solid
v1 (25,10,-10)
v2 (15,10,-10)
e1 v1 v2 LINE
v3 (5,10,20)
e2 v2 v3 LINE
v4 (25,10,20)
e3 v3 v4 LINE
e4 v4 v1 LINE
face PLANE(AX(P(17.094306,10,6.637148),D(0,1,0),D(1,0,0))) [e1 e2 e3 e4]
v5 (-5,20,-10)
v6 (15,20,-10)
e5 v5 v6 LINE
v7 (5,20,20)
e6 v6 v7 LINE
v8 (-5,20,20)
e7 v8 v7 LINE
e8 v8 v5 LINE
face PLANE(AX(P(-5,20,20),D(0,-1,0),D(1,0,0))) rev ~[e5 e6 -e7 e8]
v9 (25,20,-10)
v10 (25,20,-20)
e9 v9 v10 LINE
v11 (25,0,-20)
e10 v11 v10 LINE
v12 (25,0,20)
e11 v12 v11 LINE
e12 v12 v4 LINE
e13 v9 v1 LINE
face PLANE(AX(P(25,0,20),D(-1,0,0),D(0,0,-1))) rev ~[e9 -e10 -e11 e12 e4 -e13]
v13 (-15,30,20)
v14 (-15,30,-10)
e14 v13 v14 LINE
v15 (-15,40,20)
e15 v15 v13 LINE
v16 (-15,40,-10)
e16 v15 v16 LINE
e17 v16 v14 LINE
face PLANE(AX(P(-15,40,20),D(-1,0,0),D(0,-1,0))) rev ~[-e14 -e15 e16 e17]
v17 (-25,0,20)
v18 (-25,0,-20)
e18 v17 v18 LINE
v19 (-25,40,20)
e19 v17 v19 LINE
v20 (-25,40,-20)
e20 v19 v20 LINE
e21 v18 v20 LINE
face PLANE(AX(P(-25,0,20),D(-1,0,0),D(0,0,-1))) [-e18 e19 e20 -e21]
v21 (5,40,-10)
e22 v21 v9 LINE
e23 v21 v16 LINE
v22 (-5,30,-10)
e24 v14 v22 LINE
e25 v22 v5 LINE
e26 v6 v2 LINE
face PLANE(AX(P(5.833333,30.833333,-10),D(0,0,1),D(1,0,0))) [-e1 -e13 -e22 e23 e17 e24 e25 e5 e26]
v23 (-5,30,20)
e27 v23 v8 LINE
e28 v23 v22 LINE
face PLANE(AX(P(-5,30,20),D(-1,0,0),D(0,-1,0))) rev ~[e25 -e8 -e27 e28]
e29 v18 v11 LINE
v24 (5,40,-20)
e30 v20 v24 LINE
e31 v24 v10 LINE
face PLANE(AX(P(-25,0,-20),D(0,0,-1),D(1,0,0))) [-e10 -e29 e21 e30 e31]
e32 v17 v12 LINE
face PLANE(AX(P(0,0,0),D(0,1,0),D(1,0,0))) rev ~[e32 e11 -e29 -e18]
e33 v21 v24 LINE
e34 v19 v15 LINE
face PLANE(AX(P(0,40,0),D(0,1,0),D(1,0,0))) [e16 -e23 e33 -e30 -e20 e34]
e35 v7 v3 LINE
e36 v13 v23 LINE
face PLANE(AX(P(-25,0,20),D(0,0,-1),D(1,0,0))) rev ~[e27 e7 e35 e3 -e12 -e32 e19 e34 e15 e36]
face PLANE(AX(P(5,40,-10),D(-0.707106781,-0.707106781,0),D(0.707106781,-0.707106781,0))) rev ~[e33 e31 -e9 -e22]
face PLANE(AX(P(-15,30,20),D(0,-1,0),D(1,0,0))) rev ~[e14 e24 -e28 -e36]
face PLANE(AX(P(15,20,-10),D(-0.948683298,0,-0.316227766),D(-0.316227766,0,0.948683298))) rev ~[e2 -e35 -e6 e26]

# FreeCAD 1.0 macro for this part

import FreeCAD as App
import Part
import Sketcher

V = App.Vector

doc = App.newDocument("Part")
body = doc.addObject("PartDesign::Body", "Body")

sketch1 = doc.addObject("Sketcher::SketchObject", "Sketch")
body.addObject(sketch1)
sketch1.AttachmentSupport = (doc.XZ_Plane, [""])
sketch1.MapMode = "FlatFace"
sketch1.addGeometry(Part.LineSegment(V(-25, -20, 0), V(-25, 20, 0)), False)
sketch1.addGeometry(Part.LineSegment(V(-25, 20, 0), V(25, 20, 0)), False)
sketch1.addGeometry(Part.LineSegment(V(25, 20, 0), V(25, -20, 0)), False)
sketch1.addGeometry(Part.LineSegment(V(25, -20, 0), V(-25, -20, 0)), False)
sketch1.addConstraint(Sketcher.Constraint("Coincident", 0, 2, 1, 1))
sketch1.addConstraint(Sketcher.Constraint("Coincident", 1, 2, 2, 1))
sketch1.addConstraint(Sketcher.Constraint("Coincident", 2, 2, 3, 1))
sketch1.addConstraint(Sketcher.Constraint("Coincident", 3, 2, 0, 1))
sketch1.addConstraint(Sketcher.Constraint("Vertical", 0))
sketch1.addConstraint(Sketcher.Constraint("Horizontal", 1))
sketch1.addConstraint(Sketcher.Constraint("Vertical", 2))
sketch1.addConstraint(Sketcher.Constraint("Horizontal", 3))
sketch1.addConstraint(Sketcher.Constraint("Symmetric", 0, 2, 2, 2, -1, 1))
sketch1.addConstraint(Sketcher.Constraint("DistanceX", 1, 1, 1, 2, 50.0))
sketch1.addConstraint(Sketcher.Constraint("DistanceY", 0, 1, 0, 2, 40.0))
pad1 = doc.addObject("PartDesign::Pad", "Pad")
body.addObject(pad1)
pad1.Profile = sketch1
pad1.Length = 40
pad1.Reversed = True

sketch2 = doc.addObject("Sketcher::SketchObject", "Sketch001")
body.addObject(sketch2)
sketch2.AttachmentSupport = (doc.XY_Plane, [""])
sketch2.MapMode = "FlatFace"
sketch2.AttachmentOffset = App.Placement(V(0, 0, 20), App.Rotation())
sketch2.addGeometry(Part.LineSegment(V(-15, 40, 0), V(-15, 30, 0)), False)
sketch2.addGeometry(Part.LineSegment(V(-15, 30, 0), V(-5, 30, 0)), False)
sketch2.addGeometry(Part.LineSegment(V(-5, 30, 0), V(-5, 20, 0)), False)
sketch2.addGeometry(Part.LineSegment(V(-5, 20, 0), V(25, 20, 0)), False)
sketch2.addGeometry(Part.LineSegment(V(25, 20, 0), V(25, 40, 0)), False)
sketch2.addGeometry(Part.LineSegment(V(25, 40, 0), V(-15, 40, 0)), False)
sketch2.addConstraint(Sketcher.Constraint("Coincident", 0, 2, 1, 1))
sketch2.addConstraint(Sketcher.Constraint("Coincident", 1, 2, 2, 1))
sketch2.addConstraint(Sketcher.Constraint("Coincident", 2, 2, 3, 1))
sketch2.addConstraint(Sketcher.Constraint("Coincident", 3, 2, 4, 1))
sketch2.addConstraint(Sketcher.Constraint("Coincident", 4, 2, 5, 1))
sketch2.addConstraint(Sketcher.Constraint("Coincident", 5, 2, 0, 1))
sketch2.addConstraint(Sketcher.Constraint("Vertical", 0))
sketch2.addConstraint(Sketcher.Constraint("Horizontal", 1))
sketch2.addConstraint(Sketcher.Constraint("Vertical", 2))
sketch2.addConstraint(Sketcher.Constraint("Horizontal", 3))
sketch2.addConstraint(Sketcher.Constraint("Vertical", 4))
sketch2.addConstraint(Sketcher.Constraint("Horizontal", 5))
sketch2.addConstraint(Sketcher.Constraint("Equal", 1, 0))
sketch2.addConstraint(Sketcher.Constraint("Equal", 0, 2))
sketch2.addConstraint(Sketcher.Constraint("DistanceX", 1, 1, 1, 2, 10.0))
sketch2.addConstraint(Sketcher.Constraint("DistanceX", 3, 1, 3, 2, 30.0))
sketch2.addConstraint(Sketcher.Constraint("DistanceX", 0, 2, -1, 1, 15.0))
sketch2.addConstraint(Sketcher.Constraint("DistanceY", -1, 1, 0, 2, 30.0))
pocket1 = doc.addObject("PartDesign::Pocket", "Pocket")
body.addObject(pocket1)
pocket1.Profile = sketch2
pocket1.Length = 30

sketch3 = doc.addObject("Sketcher::SketchObject", "Sketch002")
body.addObject(sketch3)
sketch3.AttachmentSupport = (doc.XZ_Plane, [""])
sketch3.MapMode = "FlatFace"
sketch3.AttachmentOffset = App.Placement(V(0, 0, -20), App.Rotation())
sketch3.addGeometry(Part.LineSegment(V(15, -10, 0), V(5, 20, 0)), False)
sketch3.addGeometry(Part.LineSegment(V(5, 20, 0), V(25, 20, 0)), False)
sketch3.addGeometry(Part.LineSegment(V(25, 20, 0), V(25, -10, 0)), False)
sketch3.addGeometry(Part.LineSegment(V(25, -10, 0), V(15, -10, 0)), False)
sketch3.addConstraint(Sketcher.Constraint("Coincident", 0, 2, 1, 1))
sketch3.addConstraint(Sketcher.Constraint("Coincident", 1, 2, 2, 1))
sketch3.addConstraint(Sketcher.Constraint("Coincident", 2, 2, 3, 1))
sketch3.addConstraint(Sketcher.Constraint("Coincident", 3, 2, 0, 1))
sketch3.addConstraint(Sketcher.Constraint("Horizontal", 1))
sketch3.addConstraint(Sketcher.Constraint("Vertical", 2))
sketch3.addConstraint(Sketcher.Constraint("Horizontal", 3))
sketch3.addConstraint(Sketcher.Constraint("DistanceX", 1, 1, 1, 2, 20.0))
sketch3.addConstraint(Sketcher.Constraint("DistanceX", 3, 2, 3, 1, 10.0))
sketch3.addConstraint(Sketcher.Constraint("DistanceY", 2, 2, 2, 1, 30.0))
sketch3.addConstraint(Sketcher.Constraint("DistanceX", -1, 1, 0, 2, 5.0))
sketch3.addConstraint(Sketcher.Constraint("DistanceY", -1, 1, 0, 2, 20.0))
pocket2 = doc.addObject("PartDesign::Pocket", "Pocket001")
body.addObject(pocket2)
pocket2.Profile = sketch3
pocket2.Length = 10
pocket2.Reversed = True

sketch4 = doc.addObject("Sketcher::SketchObject", "Sketch003")
body.addObject(sketch4)
sketch4.AttachmentSupport = (doc.XY_Plane, [""])
sketch4.MapMode = "FlatFace"
sketch4.AttachmentOffset = App.Placement(V(0, 0, -10), App.Rotation())
sketch4.addGeometry(Part.LineSegment(V(5, 40, 0), V(25, 20, 0)), False)
sketch4.addGeometry(Part.LineSegment(V(25, 20, 0), V(25, 40, 0)), False)
sketch4.addGeometry(Part.LineSegment(V(25, 40, 0), V(5, 40, 0)), False)
sketch4.addConstraint(Sketcher.Constraint("Coincident", 0, 2, 1, 1))
sketch4.addConstraint(Sketcher.Constraint("Coincident", 1, 2, 2, 1))
sketch4.addConstraint(Sketcher.Constraint("Coincident", 2, 2, 0, 1))
sketch4.addConstraint(Sketcher.Constraint("Vertical", 1))
sketch4.addConstraint(Sketcher.Constraint("Horizontal", 2))
sketch4.addConstraint(Sketcher.Constraint("Equal", 2, 1))
sketch4.addConstraint(Sketcher.Constraint("DistanceX", 2, 2, 2, 1, 20.0))
sketch4.addConstraint(Sketcher.Constraint("DistanceX", -1, 1, 0, 2, 25.0))
sketch4.addConstraint(Sketcher.Constraint("DistanceY", -1, 1, 0, 2, 20.0))
pocket3 = doc.addObject("PartDesign::Pocket", "Pocket002")
body.addObject(pocket3)
pocket3.Profile = sketch4
pocket3.Length = 10

doc.recompute()
